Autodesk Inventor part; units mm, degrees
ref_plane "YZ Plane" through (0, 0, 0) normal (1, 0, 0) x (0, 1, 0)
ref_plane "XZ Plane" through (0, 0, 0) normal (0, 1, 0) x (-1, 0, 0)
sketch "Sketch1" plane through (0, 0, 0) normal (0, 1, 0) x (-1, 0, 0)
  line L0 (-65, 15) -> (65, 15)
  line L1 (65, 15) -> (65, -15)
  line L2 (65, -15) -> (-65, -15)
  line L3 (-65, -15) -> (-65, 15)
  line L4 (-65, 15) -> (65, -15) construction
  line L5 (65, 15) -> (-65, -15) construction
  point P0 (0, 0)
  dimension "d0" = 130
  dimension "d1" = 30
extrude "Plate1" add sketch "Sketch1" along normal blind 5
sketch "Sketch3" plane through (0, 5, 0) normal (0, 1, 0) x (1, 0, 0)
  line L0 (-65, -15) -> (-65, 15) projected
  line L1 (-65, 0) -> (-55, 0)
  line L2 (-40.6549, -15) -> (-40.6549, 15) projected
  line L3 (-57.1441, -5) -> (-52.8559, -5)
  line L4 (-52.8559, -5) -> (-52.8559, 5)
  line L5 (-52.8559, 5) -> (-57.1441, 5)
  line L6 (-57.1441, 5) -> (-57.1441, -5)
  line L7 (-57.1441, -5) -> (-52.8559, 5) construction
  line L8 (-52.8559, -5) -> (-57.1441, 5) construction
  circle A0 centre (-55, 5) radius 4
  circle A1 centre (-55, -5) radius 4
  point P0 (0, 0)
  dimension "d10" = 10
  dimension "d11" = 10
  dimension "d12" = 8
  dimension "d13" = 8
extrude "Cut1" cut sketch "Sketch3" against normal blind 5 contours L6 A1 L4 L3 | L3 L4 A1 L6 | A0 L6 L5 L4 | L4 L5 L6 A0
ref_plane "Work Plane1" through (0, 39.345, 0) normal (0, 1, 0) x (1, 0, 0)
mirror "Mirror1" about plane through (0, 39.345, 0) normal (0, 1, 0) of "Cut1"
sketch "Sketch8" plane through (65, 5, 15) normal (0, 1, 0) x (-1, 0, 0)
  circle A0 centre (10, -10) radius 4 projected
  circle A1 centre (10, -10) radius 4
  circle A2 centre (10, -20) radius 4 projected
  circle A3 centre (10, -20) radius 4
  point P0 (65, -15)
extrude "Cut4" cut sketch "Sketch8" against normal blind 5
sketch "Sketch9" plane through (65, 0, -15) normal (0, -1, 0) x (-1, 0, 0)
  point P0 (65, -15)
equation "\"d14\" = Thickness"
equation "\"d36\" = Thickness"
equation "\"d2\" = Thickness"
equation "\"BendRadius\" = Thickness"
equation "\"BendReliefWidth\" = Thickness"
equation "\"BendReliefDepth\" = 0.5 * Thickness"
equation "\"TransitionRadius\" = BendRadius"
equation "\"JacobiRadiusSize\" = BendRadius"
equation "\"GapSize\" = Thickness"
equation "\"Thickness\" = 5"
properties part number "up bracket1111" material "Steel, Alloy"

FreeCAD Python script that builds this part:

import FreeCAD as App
import Part
import Sketcher

doc = App.newDocument("Part")
params = doc.addObject("Spreadsheet::Sheet", "Params")
for row, (alias, value) in enumerate([
    ("sketch1_width", "130 mm"),
    ("sketch1_height", "30 mm"),
    ("pad1_length", "5 mm"),
    ("sketch2_diameter", "8 mm"),
    ("pocket1_length", "5 mm"),
    ("sketch3_diameter", "8 mm"),
    ("pocket2_length", "5 mm"),
], start=1):
    params.set(f"A{row}", alias)
    params.set(f"B{row}", "=" + value)
    params.setAlias(f"B{row}", alias)

body = doc.addObject("PartDesign::Body", "Body")

# Sketch on XZ plane
sketch1 = doc.addObject("Sketcher::SketchObject", "Sketch")
body.addObject(sketch1)
sketch1.AttachmentSupport = (doc.XZ_Plane, [""])
sketch1.MapMode = "FlatFace"
sketch1.addGeometry(Part.LineSegment(App.Vector(-65, 15, 0), App.Vector(65, 15, 0)), False)
sketch1.addGeometry(Part.LineSegment(App.Vector(65, 15, 0), App.Vector(65, -15, 0)), False)
sketch1.addGeometry(Part.LineSegment(App.Vector(65, -15, 0), App.Vector(-65, -15, 0)), False)
sketch1.addGeometry(Part.LineSegment(App.Vector(-65, -15, 0), App.Vector(-65, 15, 0)), False)
sketch1.addConstraint(Sketcher.Constraint("Coincident", 0, 2, 1, 1))
sketch1.addConstraint(Sketcher.Constraint("Coincident", 1, 2, 2, 1))
sketch1.addConstraint(Sketcher.Constraint("Coincident", 2, 2, 3, 1))
sketch1.addConstraint(Sketcher.Constraint("Coincident", 3, 2, 0, 1))
sketch1.addConstraint(Sketcher.Constraint("Horizontal", 0))
sketch1.addConstraint(Sketcher.Constraint("Vertical", 1))
sketch1.addConstraint(Sketcher.Constraint("Horizontal", 2))
sketch1.addConstraint(Sketcher.Constraint("Vertical", 3))
sketch1.addConstraint(Sketcher.Constraint("Symmetric", 0, 2, 2, 2, -1, 1))
sketch1.addConstraint(Sketcher.Constraint("DistanceX", 0, 1, 0, 2, 130.0))
sketch1.addConstraint(Sketcher.Constraint("DistanceY", 1, 2, 1, 1, 30.0))
sketch1.setExpression("Constraints[9]", "Params.sketch1_width")
sketch1.setExpression("Constraints[10]", "Params.sketch1_height")
pad1 = doc.addObject("PartDesign::Pad", "Pad")
body.addObject(pad1)
pad1.Profile = sketch1
pad1.setExpression("Length", "Params.pad1_length")
pad1.Reversed = True

# Sketch on XZ plane
sketch2 = doc.addObject("Sketcher::SketchObject", "Sketch001")
body.addObject(sketch2)
sketch2.AttachmentSupport = (doc.XZ_Plane, [""])
sketch2.MapMode = "FlatFace"
sketch2.AttachmentOffset = App.Placement(App.Vector(0, 0, -5), App.Rotation())
sketch2.addGeometry(Part.Circle(App.Vector(-55, 5, 0), App.Vector(0, 0, 1), 4), False)
sketch2.addGeometry(Part.Circle(App.Vector(-55, -5, 0), App.Vector(0, 0, 1), 4), False)
sketch2.addConstraint(Sketcher.Constraint("Equal", 0, 1))
sketch2.addConstraint(Sketcher.Constraint("Symmetric", 0, 3, 1, 3, -1))
sketch2.addConstraint(Sketcher.Constraint("Diameter", 0, 8.0))
sketch2.addConstraint(Sketcher.Constraint("DistanceY", 1, 3, 0, 3, 10.0))
sketch2.addConstraint(Sketcher.Constraint("DistanceX", 0, 3, -1, 1, 55.0))
sketch2.setExpression("Constraints[2]", "Params.sketch2_diameter")
pocket1 = doc.addObject("PartDesign::Pocket", "Pocket")
body.addObject(pocket1)
pocket1.Profile = sketch2
pocket1.setExpression("Length", "Params.pocket1_length")
pocket1.Reversed = True
doc.recompute()

datumplane = doc.addObject("PartDesign::Plane", "DatumPlane")
body.addObject(datumplane)
datumplane.AttachmentSupport = (doc.XZ_Plane, [""])
datumplane.MapMode = "FlatFace"
datumplane.AttachmentOffset = App.Placement(App.Vector(0, 0, -39.345), App.Rotation())
mirrored = doc.addObject("PartDesign::Mirrored", "Mirrored")
body.addObject(mirrored)
mirrored.Originals = [pocket1]
mirrored.MirrorPlane = (datumplane, [""])
body.Tip = mirrored

# Sketch on XZ plane
sketch3 = doc.addObject("Sketcher::SketchObject", "Sketch002")
body.addObject(sketch3)
sketch3.AttachmentSupport = (doc.XZ_Plane, [""])
sketch3.MapMode = "FlatFace"
sketch3.AttachmentOffset = App.Placement(App.Vector(0, 0, -5), App.Rotation())
sketch3.addGeometry(Part.Circle(App.Vector(55, 5, 0), App.Vector(0, 0, 1), 4), False)
sketch3.addGeometry(Part.Circle(App.Vector(55, -5, 0), App.Vector(0, 0, 1), 4), False)
sketch3.addConstraint(Sketcher.Constraint("Equal", 0, 1))
sketch3.addConstraint(Sketcher.Constraint("Symmetric", 0, 3, 1, 3, -1))
sketch3.addConstraint(Sketcher.Constraint("Diameter", 0, 8.0))
sketch3.addConstraint(Sketcher.Constraint("DistanceX", -1, 1, 0, 3, 55.0))
sketch3.addConstraint(Sketcher.Constraint("DistanceY", -1, 1, 0, 3, 5.0))
sketch3.setExpression("Constraints[2]", "Params.sketch3_diameter")
pocket2 = doc.addObject("PartDesign::Pocket", "Pocket001")
body.addObject(pocket2)
pocket2.Profile = sketch3
pocket2.setExpression("Length", "Params.pocket2_length")
pocket2.Reversed = True

doc.recompute()
